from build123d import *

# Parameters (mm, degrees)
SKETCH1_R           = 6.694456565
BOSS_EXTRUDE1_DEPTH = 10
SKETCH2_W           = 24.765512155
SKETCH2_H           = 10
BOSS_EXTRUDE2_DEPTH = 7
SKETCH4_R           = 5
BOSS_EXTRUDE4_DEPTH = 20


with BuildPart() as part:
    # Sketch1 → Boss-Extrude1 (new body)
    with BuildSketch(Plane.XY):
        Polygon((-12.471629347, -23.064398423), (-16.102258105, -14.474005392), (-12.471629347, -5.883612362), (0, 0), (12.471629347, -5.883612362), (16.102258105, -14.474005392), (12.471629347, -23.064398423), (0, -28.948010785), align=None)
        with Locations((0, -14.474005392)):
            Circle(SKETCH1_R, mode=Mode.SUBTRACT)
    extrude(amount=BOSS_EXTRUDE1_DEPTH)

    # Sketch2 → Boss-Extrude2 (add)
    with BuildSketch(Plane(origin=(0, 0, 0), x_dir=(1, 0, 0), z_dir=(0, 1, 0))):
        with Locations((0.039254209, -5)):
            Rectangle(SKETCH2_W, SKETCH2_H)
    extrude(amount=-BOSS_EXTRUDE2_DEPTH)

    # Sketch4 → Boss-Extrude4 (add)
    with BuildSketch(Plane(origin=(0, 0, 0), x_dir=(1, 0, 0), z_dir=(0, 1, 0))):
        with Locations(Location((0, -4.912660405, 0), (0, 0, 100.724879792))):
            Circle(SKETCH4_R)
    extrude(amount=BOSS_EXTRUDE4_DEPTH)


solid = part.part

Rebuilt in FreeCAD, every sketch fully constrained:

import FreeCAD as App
import Part
import Sketcher
Q = App.Units.Quantity

doc = App.newDocument("Part")
body = doc.addObject("PartDesign::Body", "Body")

sketch1 = body.newObject("Sketcher::SketchObject", "Sketch")
sketch1.AttachmentSupport = (doc.getObject("XY_Plane"), [""])
sketch1.MapMode = "FlatFace"
sketch1.addGeometry([
    Part.LineSegment(App.Vector(-16, -14, 0), App.Vector(-12, -23, 0)),
    Part.LineSegment(App.Vector(-12, -23, 0), App.Vector(0, -29, 0)),
    Part.LineSegment(App.Vector(0, -29, 0), App.Vector(12, -23, 0)),
    Part.LineSegment(App.Vector(12, -23, 0), App.Vector(16, -14, 0)),
    Part.LineSegment(App.Vector(16, -14, 0), App.Vector(12, -6, 0)),
    Part.LineSegment(App.Vector(12, -6, 0), App.Vector(0, 0, 0)),
    Part.LineSegment(App.Vector(0, 0, 0), App.Vector(-12, -6, 0)),
    Part.LineSegment(App.Vector(-12, -6, 0), App.Vector(-16, -14, 0)),
    Part.Circle(App.Vector(0, -14, 0), App.Vector(0, 0, 1), 7),
], False)
sketch1.addConstraint([
    Sketcher.Constraint("Coincident", 0, 2, 1, 1),
    Sketcher.Constraint("Coincident", 1, 2, 2, 1),
    Sketcher.Constraint("Coincident", 2, 2, 3, 1),
    Sketcher.Constraint("Coincident", 3, 2, 4, 1),
    Sketcher.Constraint("Coincident", 4, 2, 5, 1),
    Sketcher.Constraint("Coincident", 5, 2, 6, 1),
    Sketcher.Constraint("Coincident", 6, 2, 7, 1),
    Sketcher.Constraint("Coincident", 7, 2, 0, 1),
    Sketcher.Constraint("Coincident", 5, 2, -1, 1),
    Sketcher.Constraint("Symmetric", 0, 2, 2, 2, -2),
    Sketcher.Constraint("Symmetric", 4, 2, 6, 2, -2),
    Sketcher.Constraint("Symmetric", 3, 2, 7, 2, -2),
    Sketcher.Constraint("PointOnObject", 8, 3, -2),
    Sketcher.Constraint("PointOnObject", 1, 2, -2),
    Sketcher.Constraint("Parallel", 0, 4),
    Sketcher.Constraint("Parallel", 1, 5),
    Sketcher.Constraint("Horizontal", 8, 3, 3, 2),
    Sketcher.Constraint("Vertical", 2, 2, 4, 2),
    Sketcher.Constraint("Diameter", 8, Q("13.388913 mm")),
    Sketcher.Constraint("DistanceY", 0, 2, -1, 1, Q("23.064398 mm")),
    Sketcher.Constraint("Distance", 0, Q("9.326109 mm")),
    Sketcher.Constraint("DistanceX", 0, 2, -1, 1, Q("12.471629 mm")),
    Sketcher.Constraint("DistanceY", 1, 2, -1, 1, Q("28.948011 mm")),
])
pad1 = body.newObject("PartDesign::Pad", "Pad")
pad1.Profile = sketch1
pad1.Length = 10

sketch2 = body.newObject("Sketcher::SketchObject", "Sketch001")
sketch2.AttachmentSupport = (doc.getObject("XZ_Plane"), [""])
sketch2.MapMode = "FlatFace"
sketch2.addGeometry([
    Part.LineSegment(App.Vector(-12, 0, 0), App.Vector(-12, 10, 0)),
    Part.LineSegment(App.Vector(-12, 10, 0), App.Vector(12, 10, 0)),
    Part.LineSegment(App.Vector(12, 10, 0), App.Vector(12, 0, 0)),
    Part.LineSegment(App.Vector(12, 0, 0), App.Vector(-12, 0, 0)),
], False)
sketch2.addConstraint([
    Sketcher.Constraint("Coincident", 0, 2, 1, 1),
    Sketcher.Constraint("Coincident", 1, 2, 2, 1),
    Sketcher.Constraint("Coincident", 2, 2, 3, 1),
    Sketcher.Constraint("Coincident", 3, 2, 0, 1),
    Sketcher.Constraint("Vertical", 0),
    Sketcher.Constraint("Horizontal", 1),
    Sketcher.Constraint("Vertical", 2),
    Sketcher.Constraint("Horizontal", 3),
    Sketcher.Constraint("PointOnObject", 2, 2, -1),
    Sketcher.Constraint("DistanceY", 0, 1, 0, 2, Q("10 mm")),
    Sketcher.Constraint("DistanceX", 0, 2, -1, 1, Q("12.343502 mm")),
    Sketcher.Constraint("DistanceX", 1, 1, 1, 2, Q("24.765512 mm")),
])
pad2 = body.newObject("PartDesign::Pad", "Pad001")
pad2.Profile = sketch2
pad2.Length = 7

sketch3 = body.newObject("Sketcher::SketchObject", "Sketch002")
sketch3.AttachmentSupport = (doc.getObject("XZ_Plane"), [""])
sketch3.MapMode = "FlatFace"
sketch3.addGeometry(Part.Circle(App.Vector(0, 5, 0), App.Vector(0, 0, 1), 5), False)
sketch3.addConstraint([
    Sketcher.Constraint("PointOnObject", 0, 3, -2),
    Sketcher.Constraint("Diameter", 0, Q("10 mm")),
    Sketcher.Constraint("DistanceY", -1, 1, 0, 3, Q("4.91266 mm")),
])
pad3 = body.newObject("PartDesign::Pad", "Pad002")
pad3.Profile = sketch3
pad3.Length = 20
pad3.Reversed = True

doc.recompute()
